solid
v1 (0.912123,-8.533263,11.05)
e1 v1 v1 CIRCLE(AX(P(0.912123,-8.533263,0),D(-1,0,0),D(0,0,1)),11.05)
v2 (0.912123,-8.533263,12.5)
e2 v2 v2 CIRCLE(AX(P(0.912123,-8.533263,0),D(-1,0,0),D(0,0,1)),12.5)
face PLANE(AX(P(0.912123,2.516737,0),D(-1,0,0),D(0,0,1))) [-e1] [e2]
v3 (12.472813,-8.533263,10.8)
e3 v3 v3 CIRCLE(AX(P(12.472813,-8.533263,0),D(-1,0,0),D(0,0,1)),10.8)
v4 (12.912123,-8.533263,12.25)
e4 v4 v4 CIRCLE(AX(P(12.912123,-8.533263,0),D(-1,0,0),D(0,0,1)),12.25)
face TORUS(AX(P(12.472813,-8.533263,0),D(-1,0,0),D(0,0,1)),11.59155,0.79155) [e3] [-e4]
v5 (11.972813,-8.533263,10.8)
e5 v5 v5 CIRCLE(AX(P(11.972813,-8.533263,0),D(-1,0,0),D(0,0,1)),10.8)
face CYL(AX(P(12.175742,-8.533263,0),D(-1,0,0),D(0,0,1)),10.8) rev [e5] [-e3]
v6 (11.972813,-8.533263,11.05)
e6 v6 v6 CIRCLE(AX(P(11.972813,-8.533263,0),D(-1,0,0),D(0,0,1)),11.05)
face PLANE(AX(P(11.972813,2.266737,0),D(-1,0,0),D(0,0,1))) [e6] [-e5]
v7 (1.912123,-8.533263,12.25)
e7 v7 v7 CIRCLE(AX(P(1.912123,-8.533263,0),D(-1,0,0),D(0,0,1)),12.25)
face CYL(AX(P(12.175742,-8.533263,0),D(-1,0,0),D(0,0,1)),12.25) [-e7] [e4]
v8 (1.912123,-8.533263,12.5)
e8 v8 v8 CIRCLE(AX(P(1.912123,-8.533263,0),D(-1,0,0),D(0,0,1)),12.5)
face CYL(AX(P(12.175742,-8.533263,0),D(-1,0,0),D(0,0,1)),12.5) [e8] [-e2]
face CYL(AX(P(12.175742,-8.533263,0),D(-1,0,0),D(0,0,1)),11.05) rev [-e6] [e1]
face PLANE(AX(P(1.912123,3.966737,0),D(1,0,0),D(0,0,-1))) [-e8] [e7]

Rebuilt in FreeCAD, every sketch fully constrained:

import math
import FreeCAD as App
import Part
import Sketcher
from FreeCAD import Vector
Q = App.Units.Quantity

doc = App.newDocument("Part")
body = doc.addObject("PartDesign::Body", "Body")

sketch1 = body.newObject("Sketcher::SketchObject", "Sketch")
sketch1.AttachmentSupport = (doc.getObject("XY_Plane"), [""])
sketch1.MapMode = "FlatFace"
sketch1.addGeometry([
    Part.LineSegment(Vector(11.97, 2.27, 0), Vector(11.97, 2.52, 0)),
    Part.LineSegment(Vector(11.97, 2.52, 0), Vector(0.91, 2.52, 0)),
    Part.LineSegment(Vector(0.91, 2.52, 0), Vector(0.91, 3.97, 0)),
    Part.LineSegment(Vector(0.91, 3.97, 0), Vector(1.91, 3.97, 0)),
    Part.LineSegment(Vector(1.91, 3.97, 0), Vector(1.91, 3.72, 0)),
    Part.LineSegment(Vector(1.91, 3.72, 0), Vector(12.91, 3.72, 0)),
    Part.ArcOfCircle(Part.Circle(Vector(12.47, 3.06, 0), Vector(0, 0, 1), 0.79), math.radians(-90), math.radians(56)),
    Part.LineSegment(Vector(12.47, 2.27, 0), Vector(11.97, 2.27, 0)),
], False)
sketch1.addGeometry(Part.LineSegment(Vector(12.91, -8.53, 0), Vector(0.91, -8.53, 0)), True)
sketch1.addConstraint([
    Sketcher.Constraint("Coincident", 0, 2, 1, 1),
    Sketcher.Constraint("Coincident", 1, 2, 2, 1),
    Sketcher.Constraint("Coincident", 2, 2, 3, 1),
    Sketcher.Constraint("Coincident", 3, 2, 4, 1),
    Sketcher.Constraint("Coincident", 4, 2, 5, 1),
    Sketcher.Constraint("Coincident", 5, 2, 6, 2),
    Sketcher.Constraint("Tangent", 6, 1, 7, 1),
    Sketcher.Constraint("Coincident", 7, 2, 0, 1),
    Sketcher.Constraint("Vertical", 0),
    Sketcher.Constraint("Horizontal", 1),
    Sketcher.Constraint("Vertical", 2),
    Sketcher.Constraint("Horizontal", 3),
    Sketcher.Constraint("Vertical", 4),
    Sketcher.Constraint("Horizontal", 5),
    Sketcher.Constraint("Horizontal", 7),
    Sketcher.Constraint("Horizontal", 8),
    Sketcher.Constraint("Vertical", 5, 2, 8, 1),
    Sketcher.Constraint("Vertical", 2, 2, 8, 2),
    Sketcher.Constraint("Equal", 0, 4),
    Sketcher.Constraint("DistanceX", 3, 1, 3, 2, Q("1 mm")),
    Sketcher.Constraint("DistanceX", 5, 1, 5, 2, Q("11 mm")),
    Sketcher.Constraint("DistanceX", 7, 2, 7, 1, Q("0.5 mm")),
    Sketcher.Constraint("DistanceY", 0, 1, 0, 2, Q("0.25 mm")),
    Sketcher.Constraint("DistanceY", 2, 1, 2, 2, Q("1.45 mm")),
    Sketcher.Constraint("DistanceY", 8, 1, 6, 1, Q("10.8 mm")),
    Sketcher.Constraint("Radius", 6, Q("0.79155 mm")),
    Sketcher.Constraint("DistanceX", -1, 1, 6, 3, Q("12.472813 mm")),
    Sketcher.Constraint("DistanceY", -1, 1, 6, 3, Q("3.058286 mm")),
])
revolution = body.newObject("PartDesign::Revolution", "Revolution")
revolution.Profile = sketch1
revolution.ReferenceAxis = (sketch1, ["Axis0"])
revolution.Angle = 360

doc.recompute()
